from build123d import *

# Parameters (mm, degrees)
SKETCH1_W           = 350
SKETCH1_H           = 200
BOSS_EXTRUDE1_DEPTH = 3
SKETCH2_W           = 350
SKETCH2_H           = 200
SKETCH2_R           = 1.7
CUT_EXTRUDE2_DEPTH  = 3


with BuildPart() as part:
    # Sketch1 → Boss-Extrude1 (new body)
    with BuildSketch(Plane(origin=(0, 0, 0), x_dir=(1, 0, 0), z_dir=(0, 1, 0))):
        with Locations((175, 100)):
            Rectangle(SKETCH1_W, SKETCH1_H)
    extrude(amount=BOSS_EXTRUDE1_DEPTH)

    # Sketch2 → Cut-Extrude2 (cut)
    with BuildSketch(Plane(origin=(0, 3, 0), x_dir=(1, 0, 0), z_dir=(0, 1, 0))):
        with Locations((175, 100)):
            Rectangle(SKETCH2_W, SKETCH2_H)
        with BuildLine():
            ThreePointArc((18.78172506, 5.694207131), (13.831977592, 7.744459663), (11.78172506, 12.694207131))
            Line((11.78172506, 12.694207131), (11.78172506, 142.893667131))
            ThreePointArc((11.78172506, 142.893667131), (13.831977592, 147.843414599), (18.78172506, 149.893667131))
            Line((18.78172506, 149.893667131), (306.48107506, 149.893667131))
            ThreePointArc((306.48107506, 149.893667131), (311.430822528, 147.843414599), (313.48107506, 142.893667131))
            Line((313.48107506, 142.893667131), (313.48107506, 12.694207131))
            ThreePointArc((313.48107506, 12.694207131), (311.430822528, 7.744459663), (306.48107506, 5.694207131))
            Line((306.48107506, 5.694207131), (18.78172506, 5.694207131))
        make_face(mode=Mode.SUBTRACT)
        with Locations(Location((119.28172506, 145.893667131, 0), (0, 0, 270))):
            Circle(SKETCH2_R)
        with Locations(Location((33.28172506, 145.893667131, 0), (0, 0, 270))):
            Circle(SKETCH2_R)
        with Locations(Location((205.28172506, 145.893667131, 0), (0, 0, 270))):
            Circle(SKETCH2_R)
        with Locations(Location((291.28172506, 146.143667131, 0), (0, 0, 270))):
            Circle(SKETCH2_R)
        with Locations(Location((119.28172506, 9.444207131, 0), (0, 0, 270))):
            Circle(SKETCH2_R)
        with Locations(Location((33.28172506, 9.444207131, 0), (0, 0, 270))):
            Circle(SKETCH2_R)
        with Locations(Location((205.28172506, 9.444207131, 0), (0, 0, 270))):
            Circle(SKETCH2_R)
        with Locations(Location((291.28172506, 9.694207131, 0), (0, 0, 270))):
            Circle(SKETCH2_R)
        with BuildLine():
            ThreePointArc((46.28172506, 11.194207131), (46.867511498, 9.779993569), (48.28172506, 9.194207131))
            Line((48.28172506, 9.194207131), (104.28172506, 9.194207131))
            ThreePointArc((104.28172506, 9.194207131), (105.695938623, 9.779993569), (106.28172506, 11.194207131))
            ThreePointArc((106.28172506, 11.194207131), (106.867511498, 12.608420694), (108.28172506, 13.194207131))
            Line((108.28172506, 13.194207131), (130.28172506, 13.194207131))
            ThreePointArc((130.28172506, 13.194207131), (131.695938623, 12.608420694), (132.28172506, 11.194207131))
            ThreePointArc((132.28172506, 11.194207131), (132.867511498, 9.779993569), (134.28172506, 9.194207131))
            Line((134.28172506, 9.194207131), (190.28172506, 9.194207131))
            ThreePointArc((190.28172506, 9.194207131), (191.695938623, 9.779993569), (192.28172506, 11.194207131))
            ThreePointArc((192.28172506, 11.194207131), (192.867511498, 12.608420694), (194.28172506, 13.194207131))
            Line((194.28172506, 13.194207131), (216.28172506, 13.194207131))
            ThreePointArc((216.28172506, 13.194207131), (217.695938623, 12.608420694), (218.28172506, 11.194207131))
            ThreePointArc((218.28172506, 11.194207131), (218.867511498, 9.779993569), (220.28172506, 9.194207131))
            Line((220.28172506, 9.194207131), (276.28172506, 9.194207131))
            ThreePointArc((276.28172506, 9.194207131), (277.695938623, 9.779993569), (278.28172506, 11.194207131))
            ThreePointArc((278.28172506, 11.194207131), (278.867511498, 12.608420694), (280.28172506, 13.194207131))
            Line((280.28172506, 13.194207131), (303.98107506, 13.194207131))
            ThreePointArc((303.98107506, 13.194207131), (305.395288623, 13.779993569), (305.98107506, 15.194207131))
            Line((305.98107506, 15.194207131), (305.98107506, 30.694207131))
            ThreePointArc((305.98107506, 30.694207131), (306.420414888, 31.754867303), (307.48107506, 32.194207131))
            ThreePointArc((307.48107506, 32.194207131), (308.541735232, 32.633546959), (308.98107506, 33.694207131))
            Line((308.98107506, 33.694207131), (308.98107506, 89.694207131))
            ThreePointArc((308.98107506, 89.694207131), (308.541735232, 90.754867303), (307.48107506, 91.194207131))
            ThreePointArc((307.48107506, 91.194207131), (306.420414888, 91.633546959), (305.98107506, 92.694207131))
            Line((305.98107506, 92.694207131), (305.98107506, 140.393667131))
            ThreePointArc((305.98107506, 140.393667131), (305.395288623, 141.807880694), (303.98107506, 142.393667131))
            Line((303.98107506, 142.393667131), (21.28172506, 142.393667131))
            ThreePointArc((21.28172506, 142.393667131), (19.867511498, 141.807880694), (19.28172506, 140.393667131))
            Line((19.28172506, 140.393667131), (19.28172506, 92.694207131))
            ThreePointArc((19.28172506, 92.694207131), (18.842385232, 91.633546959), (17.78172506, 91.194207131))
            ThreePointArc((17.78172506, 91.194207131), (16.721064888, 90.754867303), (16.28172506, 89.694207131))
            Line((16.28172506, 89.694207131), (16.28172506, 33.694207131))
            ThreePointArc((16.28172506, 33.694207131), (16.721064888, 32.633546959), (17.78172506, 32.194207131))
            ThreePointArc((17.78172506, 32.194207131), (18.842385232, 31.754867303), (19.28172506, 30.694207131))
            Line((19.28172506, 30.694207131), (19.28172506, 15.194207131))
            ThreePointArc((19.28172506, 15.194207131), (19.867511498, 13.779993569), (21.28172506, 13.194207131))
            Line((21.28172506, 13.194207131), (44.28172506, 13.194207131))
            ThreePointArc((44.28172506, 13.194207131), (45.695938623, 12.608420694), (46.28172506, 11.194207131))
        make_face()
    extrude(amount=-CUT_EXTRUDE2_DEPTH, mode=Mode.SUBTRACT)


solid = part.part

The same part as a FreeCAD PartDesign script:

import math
import FreeCAD as App
import Part
import Sketcher

doc = App.newDocument("Part")
params = doc.addObject("Spreadsheet::Sheet", "Params")
for row, (alias, value) in enumerate([
    ("sketch1_width", "350 mm"),
    ("sketch1_height", "200 mm"),
    ("pad1_length", "3 mm"),
    ("sketch2_radius", "7 mm"),
    ("sketch2_radius2", "2 mm"),
    ("sketch2_diameter", "3.4 mm"),
    ("sketch2_radius3", "1.5 mm"),
    ("sketch2_width", "350 mm"),
    ("pocket1_length", "3 mm"),
], start=1):
    params.set(f"A{row}", alias)
    params.set(f"B{row}", "=" + value)
    params.setAlias(f"B{row}", alias)

body = doc.addObject("PartDesign::Body", "Body")

sketch1 = body.newObject("Sketcher::SketchObject", "Sketch")
sketch1.AttachmentSupport = (doc.getObject("XZ_Plane"), [""])
sketch1.MapMode = "FlatFace"
sketch1.addGeometry([
    Part.LineSegment(App.Vector(0, -200, 0), App.Vector(0, 0, 0)),
    Part.LineSegment(App.Vector(0, 0, 0), App.Vector(350, 0, 0)),
    Part.LineSegment(App.Vector(350, 0, 0), App.Vector(350, -200, 0)),
    Part.LineSegment(App.Vector(350, -200, 0), App.Vector(0, -200, 0)),
], False)
sketch1.addConstraint([
    Sketcher.Constraint("Coincident", 0, 2, 1, 1),
    Sketcher.Constraint("Coincident", 1, 2, 2, 1),
    Sketcher.Constraint("Coincident", 2, 2, 3, 1),
    Sketcher.Constraint("Coincident", 3, 2, 0, 1),
    Sketcher.Constraint("Vertical", 0),
    Sketcher.Constraint("Horizontal", 1),
    Sketcher.Constraint("Vertical", 2),
    Sketcher.Constraint("Horizontal", 3),
    Sketcher.Constraint("Coincident", 0, 2, -1, 1),
    Sketcher.Constraint("DistanceX", 1, 1, 1, 2, 350.0),
    Sketcher.Constraint("DistanceY", 0, 1, 0, 2, 200.0),
])
sketch1.setExpression("Constraints[9]", "Params.sketch1_width")
sketch1.setExpression("Constraints[10]", "Params.sketch1_height")
pad1 = body.newObject("PartDesign::Pad", "Pad")
pad1.Profile = sketch1
pad1.setExpression("Length", "Params.pad1_length")
pad1.Reversed = True

sketch2 = body.newObject("Sketcher::SketchObject", "Sketch001")
sketch2.AttachmentSupport = (doc.getObject("XZ_Plane"), [""])
sketch2.MapMode = "FlatFace"
sketch2.AttachmentOffset = App.Placement(App.Vector(0, 0, -3), App.Rotation())
sketch2.addGeometry([
    Part.LineSegment(App.Vector(0, -200, 0), App.Vector(0, 0, 0)),
    Part.LineSegment(App.Vector(0, 0, 0), App.Vector(350, 0, 0)),
    Part.LineSegment(App.Vector(350, 0, 0), App.Vector(350, -200, 0)),
    Part.LineSegment(App.Vector(350, -200, 0), App.Vector(0, -200, 0)),
    Part.LineSegment(App.Vector(306.481075, -5.694207, 0), App.Vector(18.781725, -5.694207, 0)),
    Part.ArcOfCircle(Part.Circle(App.Vector(18.781725, -12.694207, 0), App.Vector(0, 0, 1), 7), math.radians(90), math.radians(180)),
    Part.LineSegment(App.Vector(11.781725, -12.694207, 0), App.Vector(11.781725, -142.893667, 0)),
    Part.ArcOfCircle(Part.Circle(App.Vector(18.781725, -142.893667, 0), App.Vector(0, 0, 1), 7), math.radians(-180), math.radians(-90)),
    Part.LineSegment(App.Vector(18.781725, -149.893667, 0), App.Vector(306.481075, -149.893667, 0)),
    Part.ArcOfCircle(Part.Circle(App.Vector(306.481075, -142.893667, 0), App.Vector(0, 0, 1), 7), math.radians(-90), math.radians(0)),
    Part.LineSegment(App.Vector(313.481075, -142.893667, 0), App.Vector(313.481075, -12.694207, 0)),
    Part.ArcOfCircle(Part.Circle(App.Vector(306.481075, -12.694207, 0), App.Vector(0, 0, 1), 7), math.radians(0), math.radians(90)),
    Part.Circle(App.Vector(119.281725, -145.893667, 0), App.Vector(0, 0, 1), 1.7),
    Part.Circle(App.Vector(33.281725, -145.893667, 0), App.Vector(0, 0, 1), 1.7),
    Part.Circle(App.Vector(205.281725, -145.893667, 0), App.Vector(0, 0, 1), 1.7),
    Part.Circle(App.Vector(291.281725, -146.143667, 0), App.Vector(0, 0, 1), 1.7),
    Part.Circle(App.Vector(119.281725, -9.444207, 0), App.Vector(0, 0, 1), 1.7),
    Part.Circle(App.Vector(33.281725, -9.444207, 0), App.Vector(0, 0, 1), 1.7),
    Part.Circle(App.Vector(205.281725, -9.444207, 0), App.Vector(0, 0, 1), 1.7),
    Part.Circle(App.Vector(291.281725, -9.694207, 0), App.Vector(0, 0, 1), 1.7),
    Part.ArcOfCircle(Part.Circle(App.Vector(48.281725, -11.194207, 0), App.Vector(0, 0, 1), 2), math.radians(90), math.radians(180)),
    Part.LineSegment(App.Vector(48.281725, -9.194207, 0), App.Vector(104.281725, -9.194207, 0)),
    Part.ArcOfCircle(Part.Circle(App.Vector(104.281725, -11.194207, 0), App.Vector(0, 0, 1), 2), math.radians(0), math.radians(90)),
    Part.ArcOfCircle(Part.Circle(App.Vector(108.281725, -11.194207, 0), App.Vector(0, 0, 1), 2), math.radians(180), math.radians(270)),
    Part.LineSegment(App.Vector(108.281725, -13.194207, 0), App.Vector(130.281725, -13.194207, 0)),
    Part.ArcOfCircle(Part.Circle(App.Vector(130.281725, -11.194207, 0), App.Vector(0, 0, 1), 2), math.radians(-90), math.radians(0)),
    Part.ArcOfCircle(Part.Circle(App.Vector(134.281725, -11.194207, 0), App.Vector(0, 0, 1), 2), math.radians(90), math.radians(180)),
    Part.LineSegment(App.Vector(134.281725, -9.194207, 0), App.Vector(190.281725, -9.194207, 0)),
    Part.ArcOfCircle(Part.Circle(App.Vector(190.281725, -11.194207, 0), App.Vector(0, 0, 1), 2), math.radians(0), math.radians(90)),
    Part.ArcOfCircle(Part.Circle(App.Vector(194.281725, -11.194207, 0), App.Vector(0, 0, 1), 2), math.radians(180), math.radians(270)),
    Part.LineSegment(App.Vector(194.281725, -13.194207, 0), App.Vector(216.281725, -13.194207, 0)),
    Part.ArcOfCircle(Part.Circle(App.Vector(216.281725, -11.194207, 0), App.Vector(0, 0, 1), 2), math.radians(-90), math.radians(0)),
    Part.ArcOfCircle(Part.Circle(App.Vector(220.281725, -11.194207, 0), App.Vector(0, 0, 1), 2), math.radians(90), math.radians(180)),
    Part.LineSegment(App.Vector(220.281725, -9.194207, 0), App.Vector(276.281725, -9.194207, 0)),
    Part.ArcOfCircle(Part.Circle(App.Vector(276.281725, -11.194207, 0), App.Vector(0, 0, 1), 2), math.radians(0), math.radians(90)),
    Part.ArcOfCircle(Part.Circle(App.Vector(280.281725, -11.194207, 0), App.Vector(0, 0, 1), 2), math.radians(180), math.radians(270)),
    Part.LineSegment(App.Vector(280.281725, -13.194207, 0), App.Vector(303.981075, -13.194207, 0)),
    Part.ArcOfCircle(Part.Circle(App.Vector(303.981075, -15.194207, 0), App.Vector(0, 0, 1), 2), math.radians(0), math.radians(90)),
    Part.LineSegment(App.Vector(305.981075, -15.194207, 0), App.Vector(305.981075, -30.694207, 0)),
    Part.ArcOfCircle(Part.Circle(App.Vector(307.481075, -30.694207, 0), App.Vector(0, 0, 1), 1.5), math.radians(180), math.radians(270)),
    Part.ArcOfCircle(Part.Circle(App.Vector(307.481075, -33.694207, 0), App.Vector(0, 0, 1), 1.5), math.radians(0), math.radians(90)),
    Part.LineSegment(App.Vector(308.981075, -33.694207, 0), App.Vector(308.981075, -89.694207, 0)),
    Part.ArcOfCircle(Part.Circle(App.Vector(307.481075, -89.694207, 0), App.Vector(0, 0, 1), 1.5), math.radians(-90), math.radians(0)),
    Part.ArcOfCircle(Part.Circle(App.Vector(307.481075, -92.694207, 0), App.Vector(0, 0, 1), 1.5), math.radians(90), math.radians(180)),
    Part.LineSegment(App.Vector(305.981075, -92.694207, 0), App.Vector(305.981075, -140.393667, 0)),
    Part.ArcOfCircle(Part.Circle(App.Vector(303.981075, -140.393667, 0), App.Vector(0, 0, 1), 2), math.radians(-90), math.radians(0)),
    Part.LineSegment(App.Vector(303.981075, -142.393667, 0), App.Vector(21.281725, -142.393667, 0)),
    Part.ArcOfCircle(Part.Circle(App.Vector(21.281725, -140.393667, 0), App.Vector(0, 0, 1), 2), math.radians(180), math.radians(270)),
    Part.LineSegment(App.Vector(19.281725, -140.393667, 0), App.Vector(19.281725, -92.694207, 0)),
    Part.ArcOfCircle(Part.Circle(App.Vector(17.781725, -92.694207, 0), App.Vector(0, 0, 1), 1.5), math.radians(0), math.radians(90)),
    Part.ArcOfCircle(Part.Circle(App.Vector(17.781725, -89.694207, 0), App.Vector(0, 0, 1), 1.5), math.radians(180), math.radians(270)),
    Part.LineSegment(App.Vector(16.281725, -89.694207, 0), App.Vector(16.281725, -33.694207, 0)),
    Part.ArcOfCircle(Part.Circle(App.Vector(17.781725, -33.694207, 0), App.Vector(0, 0, 1), 1.5), math.radians(90), math.radians(180)),
    Part.ArcOfCircle(Part.Circle(App.Vector(17.781725, -30.694207, 0), App.Vector(0, 0, 1), 1.5), math.radians(-90), math.radians(0)),
    Part.LineSegment(App.Vector(19.281725, -30.694207, 0), App.Vector(19.281725, -15.194207, 0)),
    Part.ArcOfCircle(Part.Circle(App.Vector(21.281725, -15.194207, 0), App.Vector(0, 0, 1), 2), math.radians(90), math.radians(180)),
    Part.LineSegment(App.Vector(21.281725, -13.194207, 0), App.Vector(44.281725, -13.194207, 0)),
    Part.ArcOfCircle(Part.Circle(App.Vector(44.281725, -11.194207, 0), App.Vector(0, 0, 1), 2), math.radians(-90), math.radians(0)),
], False)
sketch2.addConstraint([
    Sketcher.Constraint("Coincident", 0, 2, 1, 1),
    Sketcher.Constraint("Coincident", 1, 2, 2, 1),
    Sketcher.Constraint("Coincident", 2, 2, 3, 1),
    Sketcher.Constraint("Coincident", 3, 2, 0, 1),
    Sketcher.Constraint("Tangent", 4, 2, 5, 1),
    Sketcher.Constraint("Tangent", 5, 2, 6, 1),
    Sketcher.Constraint("Tangent", 6, 2, 7, 1),
    Sketcher.Constraint("Tangent", 7, 2, 8, 1),
    Sketcher.Constraint("Tangent", 8, 2, 9, 1),
    Sketcher.Constraint("Tangent", 9, 2, 10, 1),
    Sketcher.Constraint("Tangent", 10, 2, 11, 1),
    Sketcher.Constraint("Tangent", 11, 2, 4, 1),
    Sketcher.Constraint("Tangent", 20, 1, 21, 1),
    Sketcher.Constraint("Tangent", 21, 2, 22, 2),
    Sketcher.Constraint("Tangent", 22, 1, 23, 1),
    Sketcher.Constraint("Tangent", 23, 2, 24, 1),
    Sketcher.Constraint("Tangent", 24, 2, 25, 1),
    Sketcher.Constraint("Tangent", 25, 2, 26, 2),
    Sketcher.Constraint("Tangent", 26, 1, 27, 1),
    Sketcher.Constraint("Tangent", 27, 2, 28, 2),
    Sketcher.Constraint("Tangent", 28, 1, 29, 1),
    Sketcher.Constraint("Tangent", 29, 2, 30, 1),
    Sketcher.Constraint("Tangent", 30, 2, 31, 1),
    Sketcher.Constraint("Tangent", 31, 2, 32, 2),
    Sketcher.Constraint("Tangent", 32, 1, 33, 1),
    Sketcher.Constraint("Tangent", 33, 2, 34, 2),
    Sketcher.Constraint("Tangent", 34, 1, 35, 1),
    Sketcher.Constraint("Tangent", 35, 2, 36, 1),
    Sketcher.Constraint("Tangent", 36, 2, 37, 2),
    Sketcher.Constraint("Tangent", 37, 1, 38, 1),
    Sketcher.Constraint("Tangent", 38, 2, 39, 1),
    Sketcher.Constraint("Tangent", 39, 2, 40, 2),
    Sketcher.Constraint("Tangent", 40, 1, 41, 1),
    Sketcher.Constraint("Tangent", 41, 2, 42, 2),
    Sketcher.Constraint("Tangent", 42, 1, 43, 1),
    Sketcher.Constraint("Tangent", 43, 2, 44, 1),
    Sketcher.Constraint("Tangent", 44, 2, 45, 2),
    Sketcher.Constraint("Tangent", 45, 1, 46, 1),
    Sketcher.Constraint("Tangent", 46, 2, 47, 2),
    Sketcher.Constraint("Tangent", 47, 1, 48, 1),
    Sketcher.Constraint("Tangent", 48, 2, 49, 1),
    Sketcher.Constraint("Tangent", 49, 2, 50, 2),
    Sketcher.Constraint("Tangent", 50, 1, 51, 1),
    Sketcher.Constraint("Tangent", 51, 2, 52, 2),
    Sketcher.Constraint("Tangent", 52, 1, 53, 1),
    Sketcher.Constraint("Tangent", 53, 2, 54, 1),
    Sketcher.Constraint("Tangent", 54, 2, 55, 2),
    Sketcher.Constraint("Tangent", 55, 1, 56, 1),
    Sketcher.Constraint("Tangent", 56, 2, 57, 1),
    Sketcher.Constraint("Tangent", 57, 2, 20, 2),
    Sketcher.Constraint("Vertical", 0),
    Sketcher.Constraint("Horizontal", 1),
    Sketcher.Constraint("Vertical", 2),
    Sketcher.Constraint("Horizontal", 3),
    Sketcher.Constraint("Horizontal", 4),
    Sketcher.Constraint("Vertical", 6),
    Sketcher.Constraint("Horizontal", 8),
    Sketcher.Constraint("Vertical", 10),
    Sketcher.Constraint("Horizontal", 21),
    Sketcher.Constraint("Horizontal", 24),
    Sketcher.Constraint("Horizontal", 27),
    Sketcher.Constraint("Horizontal", 30),
    Sketcher.Constraint("Horizontal", 33),
    Sketcher.Constraint("Horizontal", 36),
    Sketcher.Constraint("Vertical", 38),
    Sketcher.Constraint("Vertical", 41),
    Sketcher.Constraint("Vertical", 44),
    Sketcher.Constraint("Horizontal", 46),
    Sketcher.Constraint("Vertical", 48),
    Sketcher.Constraint("Vertical", 51),
    Sketcher.Constraint("Vertical", 54),
    Sketcher.Constraint("Horizontal", 56),
    Sketcher.Constraint("Coincident", 0, 2, -1, 1),
    Sketcher.Constraint("Equal", 5, 7),
    Sketcher.Constraint("Equal", 7, 9),
    Sketcher.Constraint("Equal", 9, 11),
    Sketcher.Constraint("Equal", 12, 13),
    Sketcher.Constraint("Equal", 13, 14),
    Sketcher.Constraint("Equal", 14, 15),
    Sketcher.Constraint("Equal", 15, 16),
    Sketcher.Constraint("Equal", 16, 17),
    Sketcher.Constraint("Equal", 17, 18),
    Sketcher.Constraint("Equal", 18, 19),
    Sketcher.Constraint("Equal", 20, 22),
    Sketcher.Constraint("Equal", 22, 23),
    Sketcher.Constraint("Equal", 23, 25),
    Sketcher.Constraint("Equal", 25, 26),
    Sketcher.Constraint("Equal", 26, 28),
    Sketcher.Constraint("Equal", 28, 29),
    Sketcher.Constraint("Equal", 29, 31),
    Sketcher.Constraint("Equal", 31, 32),
    Sketcher.Constraint("Equal", 32, 34),
    Sketcher.Constraint("Equal", 34, 35),
    Sketcher.Constraint("Equal", 35, 37),
    Sketcher.Constraint("Equal", 39, 40),
    Sketcher.Constraint("Equal", 40, 42),
    Sketcher.Constraint("Equal", 42, 43),
    Sketcher.Constraint("Equal", 37, 45),
    Sketcher.Constraint("Equal", 45, 47),
    Sketcher.Constraint("Equal", 43, 49),
    Sketcher.Constraint("Equal", 49, 50),
    Sketcher.Constraint("Equal", 50, 52),
    Sketcher.Constraint("Equal", 52, 53),
    Sketcher.Constraint("Equal", 47, 55),
    Sketcher.Constraint("Equal", 55, 57),
    Sketcher.Constraint("Horizontal", 12, 3, 13, 3),
    Sketcher.Constraint("Horizontal", 13, 3, 14, 3),
    Sketcher.Constraint("Horizontal", 16, 3, 17, 3),
    Sketcher.Constraint("Horizontal", 17, 3, 18, 3),
    Sketcher.Constraint("Horizontal", 22, 3, 23, 3),
    Sketcher.Constraint("Horizontal", 25, 3, 26, 3),
    Sketcher.Constraint("Horizontal", 28, 3, 29, 3),
    Sketcher.Constraint("Horizontal", 31, 3, 32, 3),
    Sketcher.Constraint("Horizontal", 34, 3, 35, 3),
    Sketcher.Constraint("Horizontal", 43, 3, 49, 3),
    Sketcher.Constraint("Horizontal", 40, 3, 52, 3),
    Sketcher.Constraint("Horizontal", 37, 3, 55, 3),
    Sketcher.Constraint("Vertical", 12, 3, 16, 3),
    Sketcher.Constraint("Vertical", 13, 3, 17, 3),
    Sketcher.Constraint("Vertical", 14, 3, 18, 3),
    Sketcher.Constraint("Vertical", 15, 3, 19, 3),
    Sketcher.Constraint("Vertical", 39, 3, 40, 3),
    Sketcher.Constraint("Vertical", 42, 3, 43, 3),
    Sketcher.Constraint("Vertical", 49, 3, 50, 3),
    Sketcher.Constraint("Vertical", 52, 3, 53, 3),
    Sketcher.Constraint("Equal", 21, 27),
    Sketcher.Constraint("Equal", 24, 30),
    Sketcher.Constraint("Equal", 27, 33),
    Sketcher.Constraint("Equal", 33, 41),
    Sketcher.Constraint("Radius", 5, 7.0),
    Sketcher.Constraint("Radius", 20, 2.0),
    Sketcher.Constraint("Diameter", 12, 3.4),
    Sketcher.Constraint("Radius", 39, 1.5),
    Sketcher.Constraint("DistanceX", 1, 1, 1, 2, 350.0),
    Sketcher.Constraint("DistanceX", 21, 1, 21, 2, 56.0),
    Sketcher.Constraint("DistanceX", 24, 1, 24, 2, 22.0),
    Sketcher.Constraint("DistanceX", 56, 1, 56, 2, 23.0),
    Sketcher.Constraint("DistanceY", 0, 1, 0, 2, 200.0),
    Sketcher.Constraint("DistanceY", 38, 2, 38, 1, 15.5),
    Sketcher.Constraint("DistanceX", 4, 2, 4, 1, 287.69935),
    Sketcher.Constraint("DistanceX", 36, 1, 36, 2, 23.69935),
    Sketcher.Constraint("DistanceY", 6, 2, 6, 1, 130.19946),
    Sketcher.Constraint("DistanceY", 44, 2, 44, 1, 47.69946),
    Sketcher.Constraint("DistanceX", -1, 1, 5, 3, 18.781725),
    Sketcher.Constraint("DistanceY", 5, 3, -1, 1, 12.694207),
    Sketcher.Constraint("DistanceX", -1, 1, 12, 3, 119.281725),
    Sketcher.Constraint("DistanceY", 12, 3, -1, 1, 145.893667),
    Sketcher.Constraint("DistanceX", -1, 1, 13, 3, 33.281725),
    Sketcher.Constraint("DistanceX", -1, 1, 14, 3, 205.281725),
    Sketcher.Constraint("DistanceX", -1, 1, 15, 3, 291.281725),
    Sketcher.Constraint("DistanceY", 15, 3, -1, 1, 146.143667),
    Sketcher.Constraint("DistanceY", 16, 3, -1, 1, 9.444207),
    Sketcher.Constraint("DistanceY", 19, 3, -1, 1, 9.694207),
    Sketcher.Constraint("DistanceX", -1, 1, 20, 3, 48.281725),
    Sketcher.Constraint("DistanceY", 20, 3, -1, 1, 11.194207),
])
sketch2.setExpression("Constraints[129]", "Params.sketch2_radius")
sketch2.setExpression("Constraints[130]", "Params.sketch2_radius2")
sketch2.setExpression("Constraints[131]", "Params.sketch2_diameter")
sketch2.setExpression("Constraints[132]", "Params.sketch2_radius3")
sketch2.setExpression("Constraints[133]", "Params.sketch2_width")
pocket1 = body.newObject("PartDesign::Pocket", "Pocket")
pocket1.Profile = sketch2
pocket1.setExpression("Length", "Params.pocket1_length")
pocket1.Reversed = True

doc.recompute()
